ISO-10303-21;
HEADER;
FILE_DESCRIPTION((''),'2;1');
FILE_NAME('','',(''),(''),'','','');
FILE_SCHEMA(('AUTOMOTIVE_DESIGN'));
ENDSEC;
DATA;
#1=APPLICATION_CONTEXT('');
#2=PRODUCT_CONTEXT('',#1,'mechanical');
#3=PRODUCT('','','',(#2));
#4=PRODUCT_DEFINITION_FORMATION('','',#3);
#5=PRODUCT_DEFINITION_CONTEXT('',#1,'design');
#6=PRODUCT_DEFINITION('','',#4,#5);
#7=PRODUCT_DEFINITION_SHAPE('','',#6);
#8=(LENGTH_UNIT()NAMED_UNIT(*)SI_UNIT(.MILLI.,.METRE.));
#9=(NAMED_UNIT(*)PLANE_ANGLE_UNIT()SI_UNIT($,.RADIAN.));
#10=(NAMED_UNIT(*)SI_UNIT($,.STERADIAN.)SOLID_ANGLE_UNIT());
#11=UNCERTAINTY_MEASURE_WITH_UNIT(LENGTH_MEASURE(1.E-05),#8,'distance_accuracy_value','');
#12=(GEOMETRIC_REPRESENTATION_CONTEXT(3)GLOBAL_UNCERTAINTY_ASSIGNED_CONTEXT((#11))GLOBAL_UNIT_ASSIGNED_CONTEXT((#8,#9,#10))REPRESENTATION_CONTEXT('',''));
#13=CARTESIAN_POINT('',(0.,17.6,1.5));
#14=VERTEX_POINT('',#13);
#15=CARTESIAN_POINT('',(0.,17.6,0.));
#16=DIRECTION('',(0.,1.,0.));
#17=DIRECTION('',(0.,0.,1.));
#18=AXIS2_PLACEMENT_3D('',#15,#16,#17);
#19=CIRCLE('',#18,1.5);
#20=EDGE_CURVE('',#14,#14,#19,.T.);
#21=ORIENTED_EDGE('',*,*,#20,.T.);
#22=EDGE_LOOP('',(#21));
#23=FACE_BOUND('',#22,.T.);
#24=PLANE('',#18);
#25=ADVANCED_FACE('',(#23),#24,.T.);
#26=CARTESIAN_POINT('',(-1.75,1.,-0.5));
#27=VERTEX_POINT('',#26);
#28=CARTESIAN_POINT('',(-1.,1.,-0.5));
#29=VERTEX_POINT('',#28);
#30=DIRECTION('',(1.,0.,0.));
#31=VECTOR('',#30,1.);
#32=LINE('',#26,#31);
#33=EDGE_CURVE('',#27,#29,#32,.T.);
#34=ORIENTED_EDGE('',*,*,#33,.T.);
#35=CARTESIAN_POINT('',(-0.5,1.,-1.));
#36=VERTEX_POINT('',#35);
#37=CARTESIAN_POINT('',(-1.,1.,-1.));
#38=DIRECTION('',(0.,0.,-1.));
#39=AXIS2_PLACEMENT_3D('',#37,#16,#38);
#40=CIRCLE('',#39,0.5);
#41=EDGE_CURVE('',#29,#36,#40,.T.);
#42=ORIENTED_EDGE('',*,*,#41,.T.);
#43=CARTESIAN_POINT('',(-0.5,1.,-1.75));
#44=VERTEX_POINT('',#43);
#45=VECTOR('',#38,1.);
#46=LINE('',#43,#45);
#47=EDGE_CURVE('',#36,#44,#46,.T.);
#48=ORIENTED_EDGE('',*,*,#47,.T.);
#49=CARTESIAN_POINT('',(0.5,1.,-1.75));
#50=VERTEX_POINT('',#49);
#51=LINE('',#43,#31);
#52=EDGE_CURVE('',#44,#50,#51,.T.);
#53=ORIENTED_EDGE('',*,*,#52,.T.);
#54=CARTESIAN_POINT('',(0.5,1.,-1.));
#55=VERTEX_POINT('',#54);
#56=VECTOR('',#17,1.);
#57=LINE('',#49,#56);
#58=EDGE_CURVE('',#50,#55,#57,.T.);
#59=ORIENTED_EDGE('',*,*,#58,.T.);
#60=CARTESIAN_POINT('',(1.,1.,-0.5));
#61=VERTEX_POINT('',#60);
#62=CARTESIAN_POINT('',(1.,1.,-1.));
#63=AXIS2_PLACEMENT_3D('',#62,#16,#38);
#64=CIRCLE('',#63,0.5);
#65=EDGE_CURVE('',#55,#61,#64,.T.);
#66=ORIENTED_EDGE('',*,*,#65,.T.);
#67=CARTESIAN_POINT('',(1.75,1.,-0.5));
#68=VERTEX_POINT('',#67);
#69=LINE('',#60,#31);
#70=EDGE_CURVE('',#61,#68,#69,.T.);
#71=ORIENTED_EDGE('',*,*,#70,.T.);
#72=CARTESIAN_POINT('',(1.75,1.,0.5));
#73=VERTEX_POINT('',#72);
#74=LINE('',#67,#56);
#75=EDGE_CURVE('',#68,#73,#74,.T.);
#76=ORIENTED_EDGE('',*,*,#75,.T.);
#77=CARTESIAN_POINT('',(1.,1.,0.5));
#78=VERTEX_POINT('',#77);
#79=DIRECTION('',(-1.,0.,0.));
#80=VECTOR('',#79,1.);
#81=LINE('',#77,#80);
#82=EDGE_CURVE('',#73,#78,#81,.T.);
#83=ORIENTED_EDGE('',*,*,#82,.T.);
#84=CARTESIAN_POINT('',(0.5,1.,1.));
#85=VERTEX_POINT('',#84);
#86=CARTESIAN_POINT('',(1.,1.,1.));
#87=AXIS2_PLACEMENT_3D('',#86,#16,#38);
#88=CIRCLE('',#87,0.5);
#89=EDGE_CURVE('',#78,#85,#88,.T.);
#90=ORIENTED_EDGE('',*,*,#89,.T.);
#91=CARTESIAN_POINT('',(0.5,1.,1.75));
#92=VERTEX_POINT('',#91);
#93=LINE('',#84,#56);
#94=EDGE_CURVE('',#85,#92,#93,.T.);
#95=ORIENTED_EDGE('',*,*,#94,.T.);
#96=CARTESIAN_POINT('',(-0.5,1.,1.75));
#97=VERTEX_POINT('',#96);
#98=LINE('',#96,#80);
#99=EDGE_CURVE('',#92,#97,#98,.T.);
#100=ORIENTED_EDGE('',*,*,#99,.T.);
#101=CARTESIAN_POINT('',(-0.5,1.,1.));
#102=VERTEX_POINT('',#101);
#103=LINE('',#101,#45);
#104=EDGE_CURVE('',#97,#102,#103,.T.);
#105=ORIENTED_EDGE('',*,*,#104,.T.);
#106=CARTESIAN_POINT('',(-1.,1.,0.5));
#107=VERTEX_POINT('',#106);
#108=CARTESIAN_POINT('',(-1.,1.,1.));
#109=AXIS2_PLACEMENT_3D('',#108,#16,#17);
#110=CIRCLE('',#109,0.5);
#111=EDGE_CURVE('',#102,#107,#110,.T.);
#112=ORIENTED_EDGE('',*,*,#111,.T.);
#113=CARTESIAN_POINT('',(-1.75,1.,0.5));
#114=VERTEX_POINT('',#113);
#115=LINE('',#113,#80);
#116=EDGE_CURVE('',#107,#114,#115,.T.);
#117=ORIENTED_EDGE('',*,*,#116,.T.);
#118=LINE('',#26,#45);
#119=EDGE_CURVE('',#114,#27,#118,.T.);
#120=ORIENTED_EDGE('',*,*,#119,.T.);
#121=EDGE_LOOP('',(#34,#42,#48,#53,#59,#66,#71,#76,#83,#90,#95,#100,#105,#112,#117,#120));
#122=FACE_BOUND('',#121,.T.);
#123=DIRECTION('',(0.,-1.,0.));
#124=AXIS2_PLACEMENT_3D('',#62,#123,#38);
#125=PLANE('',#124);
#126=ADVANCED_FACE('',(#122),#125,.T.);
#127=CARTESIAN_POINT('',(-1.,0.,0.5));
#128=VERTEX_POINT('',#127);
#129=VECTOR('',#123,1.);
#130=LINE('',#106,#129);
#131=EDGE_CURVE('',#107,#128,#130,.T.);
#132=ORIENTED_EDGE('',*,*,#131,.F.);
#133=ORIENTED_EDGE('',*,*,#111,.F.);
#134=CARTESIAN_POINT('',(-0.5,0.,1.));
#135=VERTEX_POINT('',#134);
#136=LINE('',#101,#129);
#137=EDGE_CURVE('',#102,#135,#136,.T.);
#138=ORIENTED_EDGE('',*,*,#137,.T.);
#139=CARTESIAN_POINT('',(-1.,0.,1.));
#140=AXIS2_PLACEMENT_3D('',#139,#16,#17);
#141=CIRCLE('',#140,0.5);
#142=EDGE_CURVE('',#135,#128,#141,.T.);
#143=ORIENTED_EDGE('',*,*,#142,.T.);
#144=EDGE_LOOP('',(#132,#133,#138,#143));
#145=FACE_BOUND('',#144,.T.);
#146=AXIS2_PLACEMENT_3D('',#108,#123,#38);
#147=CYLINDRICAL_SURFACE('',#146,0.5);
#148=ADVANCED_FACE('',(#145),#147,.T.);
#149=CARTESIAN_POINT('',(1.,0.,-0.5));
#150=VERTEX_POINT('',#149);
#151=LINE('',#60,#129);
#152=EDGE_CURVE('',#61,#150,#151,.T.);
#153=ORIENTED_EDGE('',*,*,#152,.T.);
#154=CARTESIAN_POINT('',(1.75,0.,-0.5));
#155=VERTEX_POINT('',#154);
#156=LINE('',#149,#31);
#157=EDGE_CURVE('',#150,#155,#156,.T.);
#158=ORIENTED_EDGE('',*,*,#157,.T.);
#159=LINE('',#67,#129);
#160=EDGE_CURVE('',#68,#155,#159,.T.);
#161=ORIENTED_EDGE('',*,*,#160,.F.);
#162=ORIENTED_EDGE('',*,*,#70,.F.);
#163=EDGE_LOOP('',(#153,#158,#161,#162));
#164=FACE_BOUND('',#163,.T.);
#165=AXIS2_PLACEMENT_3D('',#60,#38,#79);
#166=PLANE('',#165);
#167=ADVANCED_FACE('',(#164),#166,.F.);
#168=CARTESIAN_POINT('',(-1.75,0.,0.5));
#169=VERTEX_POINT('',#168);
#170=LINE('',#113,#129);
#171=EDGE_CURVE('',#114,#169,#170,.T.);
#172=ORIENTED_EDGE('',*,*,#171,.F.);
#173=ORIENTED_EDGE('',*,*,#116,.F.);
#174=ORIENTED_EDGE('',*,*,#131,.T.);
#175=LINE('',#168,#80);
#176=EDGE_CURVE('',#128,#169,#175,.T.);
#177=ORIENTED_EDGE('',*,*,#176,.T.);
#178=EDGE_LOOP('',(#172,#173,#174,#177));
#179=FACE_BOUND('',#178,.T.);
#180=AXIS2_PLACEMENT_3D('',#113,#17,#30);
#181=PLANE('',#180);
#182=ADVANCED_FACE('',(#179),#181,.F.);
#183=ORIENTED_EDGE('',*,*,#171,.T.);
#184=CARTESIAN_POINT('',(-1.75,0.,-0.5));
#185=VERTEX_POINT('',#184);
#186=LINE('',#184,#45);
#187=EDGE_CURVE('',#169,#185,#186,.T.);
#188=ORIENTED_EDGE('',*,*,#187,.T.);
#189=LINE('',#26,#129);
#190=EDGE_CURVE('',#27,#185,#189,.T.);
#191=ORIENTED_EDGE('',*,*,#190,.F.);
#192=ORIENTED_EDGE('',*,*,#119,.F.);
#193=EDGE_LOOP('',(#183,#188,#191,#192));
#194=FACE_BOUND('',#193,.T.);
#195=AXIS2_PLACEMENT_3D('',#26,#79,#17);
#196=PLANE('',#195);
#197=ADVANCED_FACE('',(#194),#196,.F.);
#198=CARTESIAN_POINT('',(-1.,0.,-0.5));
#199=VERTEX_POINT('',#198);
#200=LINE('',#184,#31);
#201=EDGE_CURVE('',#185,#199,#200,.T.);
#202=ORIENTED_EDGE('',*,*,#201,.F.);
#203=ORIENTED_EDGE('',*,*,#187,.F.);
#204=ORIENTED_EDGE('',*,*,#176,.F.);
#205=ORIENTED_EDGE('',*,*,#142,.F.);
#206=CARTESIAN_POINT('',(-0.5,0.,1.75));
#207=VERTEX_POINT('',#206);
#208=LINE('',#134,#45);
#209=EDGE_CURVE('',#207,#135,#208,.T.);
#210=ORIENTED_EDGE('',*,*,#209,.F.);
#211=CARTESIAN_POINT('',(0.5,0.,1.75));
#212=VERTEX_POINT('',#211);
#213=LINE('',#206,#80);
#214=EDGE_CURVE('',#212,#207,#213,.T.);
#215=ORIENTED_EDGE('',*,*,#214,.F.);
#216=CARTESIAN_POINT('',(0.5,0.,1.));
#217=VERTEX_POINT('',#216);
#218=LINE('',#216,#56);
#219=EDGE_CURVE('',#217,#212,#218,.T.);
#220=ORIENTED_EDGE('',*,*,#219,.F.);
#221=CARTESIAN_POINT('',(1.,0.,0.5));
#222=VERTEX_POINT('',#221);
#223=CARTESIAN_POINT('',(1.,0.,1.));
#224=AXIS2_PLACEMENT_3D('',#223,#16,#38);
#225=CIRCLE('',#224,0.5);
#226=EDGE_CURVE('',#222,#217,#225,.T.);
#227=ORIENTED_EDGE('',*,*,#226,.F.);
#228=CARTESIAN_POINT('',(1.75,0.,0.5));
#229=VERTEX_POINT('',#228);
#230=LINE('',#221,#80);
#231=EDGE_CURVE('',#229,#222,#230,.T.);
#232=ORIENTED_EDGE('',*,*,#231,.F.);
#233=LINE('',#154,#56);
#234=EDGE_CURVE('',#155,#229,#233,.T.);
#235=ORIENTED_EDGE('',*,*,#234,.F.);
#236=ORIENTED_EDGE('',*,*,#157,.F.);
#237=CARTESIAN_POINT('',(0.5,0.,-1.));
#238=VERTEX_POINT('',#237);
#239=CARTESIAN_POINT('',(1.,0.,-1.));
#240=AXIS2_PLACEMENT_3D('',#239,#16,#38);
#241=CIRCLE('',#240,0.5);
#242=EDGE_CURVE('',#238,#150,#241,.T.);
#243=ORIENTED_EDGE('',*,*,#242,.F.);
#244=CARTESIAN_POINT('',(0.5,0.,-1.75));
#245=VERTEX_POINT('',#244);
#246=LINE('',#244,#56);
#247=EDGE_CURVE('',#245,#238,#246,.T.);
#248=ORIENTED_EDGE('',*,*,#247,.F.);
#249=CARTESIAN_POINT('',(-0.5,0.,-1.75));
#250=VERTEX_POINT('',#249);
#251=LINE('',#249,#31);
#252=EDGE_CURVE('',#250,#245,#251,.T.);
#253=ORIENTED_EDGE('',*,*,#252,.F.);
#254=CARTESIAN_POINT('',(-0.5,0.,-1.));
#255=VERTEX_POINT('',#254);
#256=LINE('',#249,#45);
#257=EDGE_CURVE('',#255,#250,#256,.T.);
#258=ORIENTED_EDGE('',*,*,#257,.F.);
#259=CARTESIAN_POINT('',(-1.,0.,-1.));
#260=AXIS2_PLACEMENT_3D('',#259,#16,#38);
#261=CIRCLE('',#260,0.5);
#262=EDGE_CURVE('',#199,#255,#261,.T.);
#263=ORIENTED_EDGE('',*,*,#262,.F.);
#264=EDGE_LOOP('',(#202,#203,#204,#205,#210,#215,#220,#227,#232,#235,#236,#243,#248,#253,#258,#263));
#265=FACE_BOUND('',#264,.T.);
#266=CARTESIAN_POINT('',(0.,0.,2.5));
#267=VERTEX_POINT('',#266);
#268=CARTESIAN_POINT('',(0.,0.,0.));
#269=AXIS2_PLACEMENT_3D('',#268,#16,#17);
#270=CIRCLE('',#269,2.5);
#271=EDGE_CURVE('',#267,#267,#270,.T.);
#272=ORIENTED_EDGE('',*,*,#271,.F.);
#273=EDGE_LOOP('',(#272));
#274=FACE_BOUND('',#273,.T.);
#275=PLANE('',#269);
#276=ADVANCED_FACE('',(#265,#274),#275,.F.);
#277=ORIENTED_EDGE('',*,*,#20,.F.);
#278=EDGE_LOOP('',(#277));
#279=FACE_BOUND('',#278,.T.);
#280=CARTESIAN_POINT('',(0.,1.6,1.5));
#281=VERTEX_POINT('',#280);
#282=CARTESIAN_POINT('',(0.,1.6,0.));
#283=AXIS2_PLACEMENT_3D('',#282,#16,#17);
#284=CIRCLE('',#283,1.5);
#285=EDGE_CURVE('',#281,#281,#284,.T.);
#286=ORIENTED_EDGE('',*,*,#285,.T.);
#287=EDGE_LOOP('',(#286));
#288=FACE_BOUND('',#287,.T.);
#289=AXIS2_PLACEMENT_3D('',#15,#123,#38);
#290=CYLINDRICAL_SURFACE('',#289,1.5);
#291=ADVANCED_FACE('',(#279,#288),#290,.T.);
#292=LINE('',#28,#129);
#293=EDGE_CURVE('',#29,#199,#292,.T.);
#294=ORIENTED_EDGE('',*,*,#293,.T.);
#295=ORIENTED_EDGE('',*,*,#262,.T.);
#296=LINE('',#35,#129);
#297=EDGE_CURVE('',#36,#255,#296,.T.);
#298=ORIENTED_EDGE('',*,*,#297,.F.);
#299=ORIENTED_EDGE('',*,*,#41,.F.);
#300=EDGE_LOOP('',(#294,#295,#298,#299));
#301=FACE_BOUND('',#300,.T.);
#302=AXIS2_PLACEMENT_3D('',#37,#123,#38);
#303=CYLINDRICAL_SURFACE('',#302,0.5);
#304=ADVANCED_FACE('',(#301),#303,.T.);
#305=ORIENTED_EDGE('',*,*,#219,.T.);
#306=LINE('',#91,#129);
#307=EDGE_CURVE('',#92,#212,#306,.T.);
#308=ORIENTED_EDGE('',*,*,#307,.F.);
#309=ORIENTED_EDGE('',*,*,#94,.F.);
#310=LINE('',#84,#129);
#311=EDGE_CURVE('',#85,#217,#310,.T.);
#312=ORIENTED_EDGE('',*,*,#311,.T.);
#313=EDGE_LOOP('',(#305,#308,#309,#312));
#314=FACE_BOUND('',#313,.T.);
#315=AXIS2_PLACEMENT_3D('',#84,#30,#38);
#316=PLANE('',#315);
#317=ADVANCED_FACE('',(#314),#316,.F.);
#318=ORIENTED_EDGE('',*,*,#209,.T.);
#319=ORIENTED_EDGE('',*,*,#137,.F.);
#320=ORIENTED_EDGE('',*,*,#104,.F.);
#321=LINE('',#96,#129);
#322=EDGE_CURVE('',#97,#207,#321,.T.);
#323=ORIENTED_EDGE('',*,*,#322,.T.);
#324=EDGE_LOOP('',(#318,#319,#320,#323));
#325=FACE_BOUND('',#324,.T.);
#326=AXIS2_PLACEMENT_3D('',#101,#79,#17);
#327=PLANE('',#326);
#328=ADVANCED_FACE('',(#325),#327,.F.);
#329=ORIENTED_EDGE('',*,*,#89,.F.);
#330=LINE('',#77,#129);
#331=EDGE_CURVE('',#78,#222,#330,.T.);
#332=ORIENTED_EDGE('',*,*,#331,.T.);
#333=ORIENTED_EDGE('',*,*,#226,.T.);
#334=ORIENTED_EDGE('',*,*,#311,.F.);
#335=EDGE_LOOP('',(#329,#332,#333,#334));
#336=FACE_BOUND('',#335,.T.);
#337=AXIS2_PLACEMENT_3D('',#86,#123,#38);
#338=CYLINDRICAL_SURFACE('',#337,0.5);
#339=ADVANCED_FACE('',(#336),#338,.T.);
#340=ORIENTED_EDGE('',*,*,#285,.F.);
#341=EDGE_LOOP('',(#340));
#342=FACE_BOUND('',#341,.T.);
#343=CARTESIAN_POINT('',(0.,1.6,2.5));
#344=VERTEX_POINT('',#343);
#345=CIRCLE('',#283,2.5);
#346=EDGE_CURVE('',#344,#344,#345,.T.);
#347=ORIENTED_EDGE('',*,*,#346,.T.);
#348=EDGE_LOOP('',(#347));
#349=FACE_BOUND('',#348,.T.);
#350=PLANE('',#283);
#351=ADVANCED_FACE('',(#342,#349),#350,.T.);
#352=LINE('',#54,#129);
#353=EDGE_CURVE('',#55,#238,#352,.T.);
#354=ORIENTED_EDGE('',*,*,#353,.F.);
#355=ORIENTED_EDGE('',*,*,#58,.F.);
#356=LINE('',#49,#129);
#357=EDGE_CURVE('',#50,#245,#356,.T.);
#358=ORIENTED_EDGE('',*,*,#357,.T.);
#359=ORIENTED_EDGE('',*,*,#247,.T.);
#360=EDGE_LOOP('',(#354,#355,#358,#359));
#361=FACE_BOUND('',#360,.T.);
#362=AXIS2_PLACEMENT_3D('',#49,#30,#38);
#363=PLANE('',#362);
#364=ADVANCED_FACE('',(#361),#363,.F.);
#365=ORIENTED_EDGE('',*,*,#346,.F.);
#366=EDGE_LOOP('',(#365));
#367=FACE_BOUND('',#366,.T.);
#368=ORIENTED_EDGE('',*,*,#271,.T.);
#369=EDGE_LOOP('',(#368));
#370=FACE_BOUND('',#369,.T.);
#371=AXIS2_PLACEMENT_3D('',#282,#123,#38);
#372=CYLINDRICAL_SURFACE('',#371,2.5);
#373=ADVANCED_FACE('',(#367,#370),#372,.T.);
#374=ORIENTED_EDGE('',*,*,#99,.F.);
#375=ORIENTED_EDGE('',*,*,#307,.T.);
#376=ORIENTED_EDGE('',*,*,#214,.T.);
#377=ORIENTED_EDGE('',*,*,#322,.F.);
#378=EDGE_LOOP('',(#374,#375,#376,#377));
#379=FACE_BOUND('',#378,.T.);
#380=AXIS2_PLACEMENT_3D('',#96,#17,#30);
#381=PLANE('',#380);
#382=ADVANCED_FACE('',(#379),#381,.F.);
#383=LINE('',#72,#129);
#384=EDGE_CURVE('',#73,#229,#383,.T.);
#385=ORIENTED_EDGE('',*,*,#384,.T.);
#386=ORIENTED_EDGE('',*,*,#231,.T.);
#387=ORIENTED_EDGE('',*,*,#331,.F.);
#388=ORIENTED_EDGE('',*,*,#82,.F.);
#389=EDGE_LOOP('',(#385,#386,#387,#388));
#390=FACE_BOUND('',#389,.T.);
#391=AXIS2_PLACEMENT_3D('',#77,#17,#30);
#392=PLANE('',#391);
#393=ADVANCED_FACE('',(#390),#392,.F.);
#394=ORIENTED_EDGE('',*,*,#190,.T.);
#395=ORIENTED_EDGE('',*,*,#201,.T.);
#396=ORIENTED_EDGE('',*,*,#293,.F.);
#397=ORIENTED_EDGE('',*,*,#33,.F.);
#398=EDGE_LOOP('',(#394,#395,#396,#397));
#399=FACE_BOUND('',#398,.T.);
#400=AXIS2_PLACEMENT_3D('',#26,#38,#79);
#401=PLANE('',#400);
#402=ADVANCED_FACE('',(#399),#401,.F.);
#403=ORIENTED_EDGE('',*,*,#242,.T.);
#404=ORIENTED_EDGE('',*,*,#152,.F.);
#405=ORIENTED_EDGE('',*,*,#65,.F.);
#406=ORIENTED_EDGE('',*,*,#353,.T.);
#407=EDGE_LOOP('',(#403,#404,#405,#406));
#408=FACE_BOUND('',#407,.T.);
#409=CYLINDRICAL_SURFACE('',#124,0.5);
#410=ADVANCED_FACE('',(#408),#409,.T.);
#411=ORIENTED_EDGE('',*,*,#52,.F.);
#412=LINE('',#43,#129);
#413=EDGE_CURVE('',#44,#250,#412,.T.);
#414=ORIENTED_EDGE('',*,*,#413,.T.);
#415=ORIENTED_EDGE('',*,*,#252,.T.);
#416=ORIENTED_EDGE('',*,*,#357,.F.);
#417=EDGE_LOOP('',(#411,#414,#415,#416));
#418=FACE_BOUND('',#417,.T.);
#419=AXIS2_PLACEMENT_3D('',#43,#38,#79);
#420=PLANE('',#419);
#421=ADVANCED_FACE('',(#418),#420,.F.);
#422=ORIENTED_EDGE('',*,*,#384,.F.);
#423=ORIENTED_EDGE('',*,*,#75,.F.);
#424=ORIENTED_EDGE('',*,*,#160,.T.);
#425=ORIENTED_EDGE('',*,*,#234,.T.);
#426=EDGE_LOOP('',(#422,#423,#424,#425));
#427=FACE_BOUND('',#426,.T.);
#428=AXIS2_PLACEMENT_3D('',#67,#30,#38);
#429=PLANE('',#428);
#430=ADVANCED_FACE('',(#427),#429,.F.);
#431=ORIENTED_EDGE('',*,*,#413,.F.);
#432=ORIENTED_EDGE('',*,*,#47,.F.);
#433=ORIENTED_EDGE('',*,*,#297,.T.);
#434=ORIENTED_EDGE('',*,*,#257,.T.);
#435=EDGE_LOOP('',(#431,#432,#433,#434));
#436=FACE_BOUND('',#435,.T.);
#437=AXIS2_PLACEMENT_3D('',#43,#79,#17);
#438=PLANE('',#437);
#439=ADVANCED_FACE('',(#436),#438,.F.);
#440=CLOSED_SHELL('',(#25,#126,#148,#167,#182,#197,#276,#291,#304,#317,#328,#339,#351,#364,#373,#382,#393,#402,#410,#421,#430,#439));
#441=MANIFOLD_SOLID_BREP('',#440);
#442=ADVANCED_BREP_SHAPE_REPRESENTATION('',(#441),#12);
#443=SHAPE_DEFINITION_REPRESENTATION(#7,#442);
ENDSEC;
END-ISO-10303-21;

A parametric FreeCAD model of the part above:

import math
import FreeCAD as App
import Part
import Sketcher

V = App.Vector

doc = App.newDocument("Part")
body = doc.addObject("PartDesign::Body", "Body")

# Sketch on XZ plane
sketch1 = body.newObject("Sketcher::SketchObject", "Sketch")
sketch1.AttachmentSupport = (doc.getObject("XZ_Plane"), [""])
sketch1.MapMode = "FlatFace"
sketch1.addGeometry(Part.Circle(V(0, 0, 0), V(0, 0, 1), 2.5), False)
sketch1.addConstraint(Sketcher.Constraint("Coincident", 0, 3, -1, 1))
sketch1.addConstraint(Sketcher.Constraint("Diameter", 0, 5.0))
pad1 = body.newObject("PartDesign::Pad", "Pad")
pad1.Profile = sketch1
pad1.Length = 1.6
pad1.Reversed = True

# Sketch on XZ plane
sketch2 = body.newObject("Sketcher::SketchObject", "Sketch001")
sketch2.AttachmentSupport = (doc.getObject("XZ_Plane"), [""])
sketch2.MapMode = "FlatFace"
sketch2.AttachmentOffset = App.Placement(V(0, 0, -1.6), App.Rotation())
sketch2.addGeometry(Part.Circle(V(0, 0, 0), V(0, 0, 1), 1.5), False)
sketch2.addConstraint(Sketcher.Constraint("Coincident", 0, 3, -1, 1))
sketch2.addConstraint(Sketcher.Constraint("Diameter", 0, 3.0))
pad2 = body.newObject("PartDesign::Pad", "Pad001")
pad2.Profile = sketch2
pad2.Length = 16
pad2.Reversed = True

# Sketch on XZ plane
sketch3 = body.newObject("Sketcher::SketchObject", "Sketch002")
sketch3.AttachmentSupport = (doc.getObject("XZ_Plane"), [""])
sketch3.MapMode = "FlatFace"
sketch3.addGeometry(Part.LineSegment(V(-0.5, 1.75, 0), V(-0.5, 1, 0)), False)
sketch3.addGeometry(Part.ArcOfCircle(Part.Circle(V(-1, 1, 0), V(0, 0, 1), 0.5), math.radians(-90), math.radians(0)), False)
sketch3.addGeometry(Part.LineSegment(V(-1, 0.5, 0), V(-1.75, 0.5, 0)), False)
sketch3.addGeometry(Part.LineSegment(V(-1.75, 0.5, 0), V(-1.75, -0.5, 0)), False)
sketch3.addGeometry(Part.LineSegment(V(-1.75, -0.5, 0), V(-1, -0.5, 0)), False)
sketch3.addGeometry(Part.ArcOfCircle(Part.Circle(V(-1, -1, 0), V(0, 0, 1), 0.5), math.radians(0), math.radians(90)), False)
sketch3.addGeometry(Part.LineSegment(V(-0.5, -1, 0), V(-0.5, -1.75, 0)), False)
sketch3.addGeometry(Part.LineSegment(V(-0.5, -1.75, 0), V(0.5, -1.75, 0)), False)
sketch3.addGeometry(Part.LineSegment(V(0.5, -1.75, 0), V(0.5, -1, 0)), False)
sketch3.addGeometry(Part.ArcOfCircle(Part.Circle(V(1, -1, 0), V(0, 0, 1), 0.5), math.radians(90), math.radians(180)), False)
sketch3.addGeometry(Part.LineSegment(V(1, -0.5, 0), V(1.75, -0.5, 0)), False)
sketch3.addGeometry(Part.LineSegment(V(1.75, -0.5, 0), V(1.75, 0.5, 0)), False)
sketch3.addGeometry(Part.LineSegment(V(1.75, 0.5, 0), V(1, 0.5, 0)), False)
sketch3.addGeometry(Part.ArcOfCircle(Part.Circle(V(1, 1, 0), V(0, 0, 1), 0.5), math.radians(180), math.radians(270)), False)
sketch3.addGeometry(Part.LineSegment(V(0.5, 1, 0), V(0.5, 1.75, 0)), False)
sketch3.addGeometry(Part.LineSegment(V(0.5, 1.75, 0), V(-0.5, 1.75, 0)), False)
sketch3.addConstraint(Sketcher.Constraint("Tangent", 0, 2, 1, 2))
sketch3.addConstraint(Sketcher.Constraint("Tangent", 1, 1, 2, 1))
sketch3.addConstraint(Sketcher.Constraint("Coincident", 2, 2, 3, 1))
sketch3.addConstraint(Sketcher.Constraint("Coincident", 3, 2, 4, 1))
sketch3.addConstraint(Sketcher.Constraint("Tangent", 4, 2, 5, 2))
sketch3.addConstraint(Sketcher.Constraint("Tangent", 5, 1, 6, 1))
sketch3.addConstraint(Sketcher.Constraint("Coincident", 6, 2, 7, 1))
sketch3.addConstraint(Sketcher.Constraint("Coincident", 7, 2, 8, 1))
sketch3.addConstraint(Sketcher.Constraint("Tangent", 8, 2, 9, 2))
sketch3.addConstraint(Sketcher.Constraint("Tangent", 9, 1, 10, 1))
sketch3.addConstraint(Sketcher.Constraint("Coincident", 10, 2, 11, 1))
sketch3.addConstraint(Sketcher.Constraint("Coincident", 11, 2, 12, 1))
sketch3.addConstraint(Sketcher.Constraint("Tangent", 12, 2, 13, 2))
sketch3.addConstraint(Sketcher.Constraint("Tangent", 13, 1, 14, 1))
sketch3.addConstraint(Sketcher.Constraint("Coincident", 14, 2, 15, 1))
sketch3.addConstraint(Sketcher.Constraint("Coincident", 15, 2, 0, 1))
sketch3.addConstraint(Sketcher.Constraint("Vertical", 0))
sketch3.addConstraint(Sketcher.Constraint("Horizontal", 2))
sketch3.addConstraint(Sketcher.Constraint("Vertical", 3))
sketch3.addConstraint(Sketcher.Constraint("Horizontal", 4))
sketch3.addConstraint(Sketcher.Constraint("Vertical", 6))
sketch3.addConstraint(Sketcher.Constraint("Horizontal", 7))
sketch3.addConstraint(Sketcher.Constraint("Vertical", 8))
sketch3.addConstraint(Sketcher.Constraint("Horizontal", 10))
sketch3.addConstraint(Sketcher.Constraint("Vertical", 11))
sketch3.addConstraint(Sketcher.Constraint("Horizontal", 12))
sketch3.addConstraint(Sketcher.Constraint("Vertical", 14))
sketch3.addConstraint(Sketcher.Constraint("Horizontal", 15))
sketch3.addConstraint(Sketcher.Constraint("Equal", 1, 5))
sketch3.addConstraint(Sketcher.Constraint("Equal", 5, 9))
sketch3.addConstraint(Sketcher.Constraint("Equal", 9, 13))
sketch3.addConstraint(Sketcher.Constraint("Symmetric", 1, 3, 9, 3, -1, 1))
sketch3.addConstraint(Sketcher.Constraint("Symmetric", 5, 3, 13, 3, -1, 1))
sketch3.addConstraint(Sketcher.Constraint("Symmetric", 5, 3, 9, 3, -2))
sketch3.addConstraint(Sketcher.Constraint("Equal", 4, 10))
sketch3.addConstraint(Sketcher.Constraint("Equal", 12, 0))
sketch3.addConstraint(Sketcher.Constraint("Equal", 15, 3))
sketch3.addConstraint(Sketcher.Constraint("Equal", 0, 6))
sketch3.addConstraint(Sketcher.Constraint("Radius", 1, 0.5))
sketch3.addConstraint(Sketcher.Constraint("DistanceX", 7, 1, 7, 2, 1.0))
sketch3.addConstraint(Sketcher.Constraint("DistanceX", 2, 2, 2, 1, 0.75))
pocket1 = body.newObject("PartDesign::Pocket", "Pocket")
pocket1.Profile = sketch3
pocket1.Length = 1

doc.recompute()
